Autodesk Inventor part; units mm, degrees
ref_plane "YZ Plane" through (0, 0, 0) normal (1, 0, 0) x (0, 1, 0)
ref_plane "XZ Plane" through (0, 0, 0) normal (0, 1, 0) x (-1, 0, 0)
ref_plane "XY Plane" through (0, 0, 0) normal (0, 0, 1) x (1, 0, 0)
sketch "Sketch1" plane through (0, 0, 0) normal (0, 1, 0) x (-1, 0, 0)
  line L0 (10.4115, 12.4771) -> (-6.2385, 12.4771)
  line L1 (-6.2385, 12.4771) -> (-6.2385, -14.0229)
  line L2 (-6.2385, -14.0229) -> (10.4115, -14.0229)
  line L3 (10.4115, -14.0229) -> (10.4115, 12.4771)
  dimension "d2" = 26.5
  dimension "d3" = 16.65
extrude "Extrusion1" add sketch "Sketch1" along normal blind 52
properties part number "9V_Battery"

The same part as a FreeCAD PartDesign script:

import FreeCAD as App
import Part
import Sketcher

V = App.Vector


def add_polygon(sketch, points):
    """Adds a closed chain of lines whose ends are joined by coincident constraints."""
    first, n = sketch.GeometryCount, len(points)
    for a, b in zip(points, points[1:] + points[:1]):
        sketch.addGeometry(Part.LineSegment(App.Vector(*a, 0), App.Vector(*b, 0)), False)
    for i in range(n):
        sketch.addConstraint(Sketcher.Constraint("Coincident", first + i, 2, first + (i + 1) % n, 1))

doc = App.newDocument("Part")
body = doc.addObject("PartDesign::Body", "Body")

sketch1 = body.newObject("Sketcher::SketchObject", "Sketch")
sketch1.AttachmentSupport = (doc.getObject("XZ_Plane"), [""])
sketch1.MapMode = "FlatFace"
add_polygon(sketch1, [(-10, -14), (-10, 12), (6, 12), (6, -14)])
sketch1.addConstraint([
    Sketcher.Constraint("Vertical", 0),
    Sketcher.Constraint("Horizontal", 1),
    Sketcher.Constraint("Vertical", 2),
    Sketcher.Constraint("Horizontal", 3),
    Sketcher.Constraint("DistanceY", 0, 1, 0, 2, 26.5),
    Sketcher.Constraint("DistanceX", 1, 1, 1, 2, 16.65),
    Sketcher.Constraint("DistanceY", -1, 1, 0, 2, 12.477),
    Sketcher.Constraint("DistanceX", 0, 2, -1, 1, 10.4115),
])
pad1 = body.newObject("PartDesign::Pad", "Pad")
pad1.Profile = sketch1
pad1.Length = 52
pad1.Reversed = True

doc.recompute()
